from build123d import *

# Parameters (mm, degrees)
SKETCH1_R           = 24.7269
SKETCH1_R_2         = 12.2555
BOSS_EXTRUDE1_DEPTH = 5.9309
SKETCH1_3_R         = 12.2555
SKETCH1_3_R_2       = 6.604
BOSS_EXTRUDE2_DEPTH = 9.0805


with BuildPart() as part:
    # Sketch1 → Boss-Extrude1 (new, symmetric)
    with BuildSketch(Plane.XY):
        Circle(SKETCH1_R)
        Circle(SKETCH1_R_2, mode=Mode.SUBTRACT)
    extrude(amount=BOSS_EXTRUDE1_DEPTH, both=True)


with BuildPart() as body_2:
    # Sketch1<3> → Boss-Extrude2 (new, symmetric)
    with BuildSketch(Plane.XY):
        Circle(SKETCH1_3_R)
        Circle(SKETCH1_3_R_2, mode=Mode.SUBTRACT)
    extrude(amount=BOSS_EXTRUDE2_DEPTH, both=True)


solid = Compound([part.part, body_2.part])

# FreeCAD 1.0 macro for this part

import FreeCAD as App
import Part
import Sketcher
from FreeCAD import Vector
Q = App.Units.Quantity

doc = App.newDocument("Part")
params = doc.addObject("Spreadsheet::Sheet", "Params")
for row, (alias, value) in enumerate([
    ("sketch1_diameter", "1.947 in"),
    ("sketch1_diameter2", "0.965 in"),
    ("pad1_length", "0.467 in"),
    ("sketch2_diameter", "0.52 in"),
    ("sketch2_diameter2", "0.965 in"),
    ("pad2_length", "0.715 in"),
], start=1):
    params.set(f"A{row}", alias)
    params.set(f"B{row}", "=" + value)
    params.setAlias(f"B{row}", alias)

body = doc.addObject("PartDesign::Body", "Body")

# Sketch on XY plane
sketch1 = body.newObject("Sketcher::SketchObject", "Sketch")
sketch1.AttachmentSupport = (doc.getObject("XY_Plane"), [""])
sketch1.MapMode = "FlatFace"
sketch1.addGeometry([
    Part.Circle(Vector(0, 0, 0), Vector(0, 0, 1), 25),
    Part.Circle(Vector(0, 0, 0), Vector(0, 0, 1), 12),
], False)
sketch1.addConstraint([
    Sketcher.Constraint("Coincident", 0, 3, -1, 1),
    Sketcher.Constraint("Coincident", 1, 3, -1, 1),
    Sketcher.Constraint("Diameter", 0, Q("1.947 in")),
    Sketcher.Constraint("Diameter", 1, Q("0.965 in")),
])
sketch1.setExpression("Constraints[2]", "Params.sketch1_diameter")
sketch1.setExpression("Constraints[3]", "Params.sketch1_diameter2")
pad1 = body.newObject("PartDesign::Pad", "Pad")
pad1.Profile = sketch1
pad1.setExpression("Length", "Params.pad1_length")
pad1.Midplane = True
body2 = doc.addObject("PartDesign::Body", "Body001")

# Sketch on XY plane
sketch2 = body2.newObject("Sketcher::SketchObject", "Sketch001")
sketch2.AttachmentSupport = (doc.getObject("XY_Plane001"), [""])
sketch2.MapMode = "FlatFace"
sketch2.addGeometry([
    Part.Circle(Vector(0, 0, 0), Vector(0, 0, 1), 12),
    Part.Circle(Vector(0, 0, 0), Vector(0, 0, 1), 7),
], False)
sketch2.addConstraint([
    Sketcher.Constraint("Coincident", 0, 3, -1, 1),
    Sketcher.Constraint("Coincident", 1, 3, -1, 1),
    Sketcher.Constraint("Diameter", 1, Q("0.52 in")),
    Sketcher.Constraint("Diameter", 0, Q("0.965 in")),
])
sketch2.setExpression("Constraints[2]", "Params.sketch2_diameter")
sketch2.setExpression("Constraints[3]", "Params.sketch2_diameter2")
pad2 = body2.newObject("PartDesign::Pad", "Pad001")
pad2.Profile = sketch2
pad2.setExpression("Length", "Params.pad2_length")
pad2.Midplane = True

doc.recompute()
